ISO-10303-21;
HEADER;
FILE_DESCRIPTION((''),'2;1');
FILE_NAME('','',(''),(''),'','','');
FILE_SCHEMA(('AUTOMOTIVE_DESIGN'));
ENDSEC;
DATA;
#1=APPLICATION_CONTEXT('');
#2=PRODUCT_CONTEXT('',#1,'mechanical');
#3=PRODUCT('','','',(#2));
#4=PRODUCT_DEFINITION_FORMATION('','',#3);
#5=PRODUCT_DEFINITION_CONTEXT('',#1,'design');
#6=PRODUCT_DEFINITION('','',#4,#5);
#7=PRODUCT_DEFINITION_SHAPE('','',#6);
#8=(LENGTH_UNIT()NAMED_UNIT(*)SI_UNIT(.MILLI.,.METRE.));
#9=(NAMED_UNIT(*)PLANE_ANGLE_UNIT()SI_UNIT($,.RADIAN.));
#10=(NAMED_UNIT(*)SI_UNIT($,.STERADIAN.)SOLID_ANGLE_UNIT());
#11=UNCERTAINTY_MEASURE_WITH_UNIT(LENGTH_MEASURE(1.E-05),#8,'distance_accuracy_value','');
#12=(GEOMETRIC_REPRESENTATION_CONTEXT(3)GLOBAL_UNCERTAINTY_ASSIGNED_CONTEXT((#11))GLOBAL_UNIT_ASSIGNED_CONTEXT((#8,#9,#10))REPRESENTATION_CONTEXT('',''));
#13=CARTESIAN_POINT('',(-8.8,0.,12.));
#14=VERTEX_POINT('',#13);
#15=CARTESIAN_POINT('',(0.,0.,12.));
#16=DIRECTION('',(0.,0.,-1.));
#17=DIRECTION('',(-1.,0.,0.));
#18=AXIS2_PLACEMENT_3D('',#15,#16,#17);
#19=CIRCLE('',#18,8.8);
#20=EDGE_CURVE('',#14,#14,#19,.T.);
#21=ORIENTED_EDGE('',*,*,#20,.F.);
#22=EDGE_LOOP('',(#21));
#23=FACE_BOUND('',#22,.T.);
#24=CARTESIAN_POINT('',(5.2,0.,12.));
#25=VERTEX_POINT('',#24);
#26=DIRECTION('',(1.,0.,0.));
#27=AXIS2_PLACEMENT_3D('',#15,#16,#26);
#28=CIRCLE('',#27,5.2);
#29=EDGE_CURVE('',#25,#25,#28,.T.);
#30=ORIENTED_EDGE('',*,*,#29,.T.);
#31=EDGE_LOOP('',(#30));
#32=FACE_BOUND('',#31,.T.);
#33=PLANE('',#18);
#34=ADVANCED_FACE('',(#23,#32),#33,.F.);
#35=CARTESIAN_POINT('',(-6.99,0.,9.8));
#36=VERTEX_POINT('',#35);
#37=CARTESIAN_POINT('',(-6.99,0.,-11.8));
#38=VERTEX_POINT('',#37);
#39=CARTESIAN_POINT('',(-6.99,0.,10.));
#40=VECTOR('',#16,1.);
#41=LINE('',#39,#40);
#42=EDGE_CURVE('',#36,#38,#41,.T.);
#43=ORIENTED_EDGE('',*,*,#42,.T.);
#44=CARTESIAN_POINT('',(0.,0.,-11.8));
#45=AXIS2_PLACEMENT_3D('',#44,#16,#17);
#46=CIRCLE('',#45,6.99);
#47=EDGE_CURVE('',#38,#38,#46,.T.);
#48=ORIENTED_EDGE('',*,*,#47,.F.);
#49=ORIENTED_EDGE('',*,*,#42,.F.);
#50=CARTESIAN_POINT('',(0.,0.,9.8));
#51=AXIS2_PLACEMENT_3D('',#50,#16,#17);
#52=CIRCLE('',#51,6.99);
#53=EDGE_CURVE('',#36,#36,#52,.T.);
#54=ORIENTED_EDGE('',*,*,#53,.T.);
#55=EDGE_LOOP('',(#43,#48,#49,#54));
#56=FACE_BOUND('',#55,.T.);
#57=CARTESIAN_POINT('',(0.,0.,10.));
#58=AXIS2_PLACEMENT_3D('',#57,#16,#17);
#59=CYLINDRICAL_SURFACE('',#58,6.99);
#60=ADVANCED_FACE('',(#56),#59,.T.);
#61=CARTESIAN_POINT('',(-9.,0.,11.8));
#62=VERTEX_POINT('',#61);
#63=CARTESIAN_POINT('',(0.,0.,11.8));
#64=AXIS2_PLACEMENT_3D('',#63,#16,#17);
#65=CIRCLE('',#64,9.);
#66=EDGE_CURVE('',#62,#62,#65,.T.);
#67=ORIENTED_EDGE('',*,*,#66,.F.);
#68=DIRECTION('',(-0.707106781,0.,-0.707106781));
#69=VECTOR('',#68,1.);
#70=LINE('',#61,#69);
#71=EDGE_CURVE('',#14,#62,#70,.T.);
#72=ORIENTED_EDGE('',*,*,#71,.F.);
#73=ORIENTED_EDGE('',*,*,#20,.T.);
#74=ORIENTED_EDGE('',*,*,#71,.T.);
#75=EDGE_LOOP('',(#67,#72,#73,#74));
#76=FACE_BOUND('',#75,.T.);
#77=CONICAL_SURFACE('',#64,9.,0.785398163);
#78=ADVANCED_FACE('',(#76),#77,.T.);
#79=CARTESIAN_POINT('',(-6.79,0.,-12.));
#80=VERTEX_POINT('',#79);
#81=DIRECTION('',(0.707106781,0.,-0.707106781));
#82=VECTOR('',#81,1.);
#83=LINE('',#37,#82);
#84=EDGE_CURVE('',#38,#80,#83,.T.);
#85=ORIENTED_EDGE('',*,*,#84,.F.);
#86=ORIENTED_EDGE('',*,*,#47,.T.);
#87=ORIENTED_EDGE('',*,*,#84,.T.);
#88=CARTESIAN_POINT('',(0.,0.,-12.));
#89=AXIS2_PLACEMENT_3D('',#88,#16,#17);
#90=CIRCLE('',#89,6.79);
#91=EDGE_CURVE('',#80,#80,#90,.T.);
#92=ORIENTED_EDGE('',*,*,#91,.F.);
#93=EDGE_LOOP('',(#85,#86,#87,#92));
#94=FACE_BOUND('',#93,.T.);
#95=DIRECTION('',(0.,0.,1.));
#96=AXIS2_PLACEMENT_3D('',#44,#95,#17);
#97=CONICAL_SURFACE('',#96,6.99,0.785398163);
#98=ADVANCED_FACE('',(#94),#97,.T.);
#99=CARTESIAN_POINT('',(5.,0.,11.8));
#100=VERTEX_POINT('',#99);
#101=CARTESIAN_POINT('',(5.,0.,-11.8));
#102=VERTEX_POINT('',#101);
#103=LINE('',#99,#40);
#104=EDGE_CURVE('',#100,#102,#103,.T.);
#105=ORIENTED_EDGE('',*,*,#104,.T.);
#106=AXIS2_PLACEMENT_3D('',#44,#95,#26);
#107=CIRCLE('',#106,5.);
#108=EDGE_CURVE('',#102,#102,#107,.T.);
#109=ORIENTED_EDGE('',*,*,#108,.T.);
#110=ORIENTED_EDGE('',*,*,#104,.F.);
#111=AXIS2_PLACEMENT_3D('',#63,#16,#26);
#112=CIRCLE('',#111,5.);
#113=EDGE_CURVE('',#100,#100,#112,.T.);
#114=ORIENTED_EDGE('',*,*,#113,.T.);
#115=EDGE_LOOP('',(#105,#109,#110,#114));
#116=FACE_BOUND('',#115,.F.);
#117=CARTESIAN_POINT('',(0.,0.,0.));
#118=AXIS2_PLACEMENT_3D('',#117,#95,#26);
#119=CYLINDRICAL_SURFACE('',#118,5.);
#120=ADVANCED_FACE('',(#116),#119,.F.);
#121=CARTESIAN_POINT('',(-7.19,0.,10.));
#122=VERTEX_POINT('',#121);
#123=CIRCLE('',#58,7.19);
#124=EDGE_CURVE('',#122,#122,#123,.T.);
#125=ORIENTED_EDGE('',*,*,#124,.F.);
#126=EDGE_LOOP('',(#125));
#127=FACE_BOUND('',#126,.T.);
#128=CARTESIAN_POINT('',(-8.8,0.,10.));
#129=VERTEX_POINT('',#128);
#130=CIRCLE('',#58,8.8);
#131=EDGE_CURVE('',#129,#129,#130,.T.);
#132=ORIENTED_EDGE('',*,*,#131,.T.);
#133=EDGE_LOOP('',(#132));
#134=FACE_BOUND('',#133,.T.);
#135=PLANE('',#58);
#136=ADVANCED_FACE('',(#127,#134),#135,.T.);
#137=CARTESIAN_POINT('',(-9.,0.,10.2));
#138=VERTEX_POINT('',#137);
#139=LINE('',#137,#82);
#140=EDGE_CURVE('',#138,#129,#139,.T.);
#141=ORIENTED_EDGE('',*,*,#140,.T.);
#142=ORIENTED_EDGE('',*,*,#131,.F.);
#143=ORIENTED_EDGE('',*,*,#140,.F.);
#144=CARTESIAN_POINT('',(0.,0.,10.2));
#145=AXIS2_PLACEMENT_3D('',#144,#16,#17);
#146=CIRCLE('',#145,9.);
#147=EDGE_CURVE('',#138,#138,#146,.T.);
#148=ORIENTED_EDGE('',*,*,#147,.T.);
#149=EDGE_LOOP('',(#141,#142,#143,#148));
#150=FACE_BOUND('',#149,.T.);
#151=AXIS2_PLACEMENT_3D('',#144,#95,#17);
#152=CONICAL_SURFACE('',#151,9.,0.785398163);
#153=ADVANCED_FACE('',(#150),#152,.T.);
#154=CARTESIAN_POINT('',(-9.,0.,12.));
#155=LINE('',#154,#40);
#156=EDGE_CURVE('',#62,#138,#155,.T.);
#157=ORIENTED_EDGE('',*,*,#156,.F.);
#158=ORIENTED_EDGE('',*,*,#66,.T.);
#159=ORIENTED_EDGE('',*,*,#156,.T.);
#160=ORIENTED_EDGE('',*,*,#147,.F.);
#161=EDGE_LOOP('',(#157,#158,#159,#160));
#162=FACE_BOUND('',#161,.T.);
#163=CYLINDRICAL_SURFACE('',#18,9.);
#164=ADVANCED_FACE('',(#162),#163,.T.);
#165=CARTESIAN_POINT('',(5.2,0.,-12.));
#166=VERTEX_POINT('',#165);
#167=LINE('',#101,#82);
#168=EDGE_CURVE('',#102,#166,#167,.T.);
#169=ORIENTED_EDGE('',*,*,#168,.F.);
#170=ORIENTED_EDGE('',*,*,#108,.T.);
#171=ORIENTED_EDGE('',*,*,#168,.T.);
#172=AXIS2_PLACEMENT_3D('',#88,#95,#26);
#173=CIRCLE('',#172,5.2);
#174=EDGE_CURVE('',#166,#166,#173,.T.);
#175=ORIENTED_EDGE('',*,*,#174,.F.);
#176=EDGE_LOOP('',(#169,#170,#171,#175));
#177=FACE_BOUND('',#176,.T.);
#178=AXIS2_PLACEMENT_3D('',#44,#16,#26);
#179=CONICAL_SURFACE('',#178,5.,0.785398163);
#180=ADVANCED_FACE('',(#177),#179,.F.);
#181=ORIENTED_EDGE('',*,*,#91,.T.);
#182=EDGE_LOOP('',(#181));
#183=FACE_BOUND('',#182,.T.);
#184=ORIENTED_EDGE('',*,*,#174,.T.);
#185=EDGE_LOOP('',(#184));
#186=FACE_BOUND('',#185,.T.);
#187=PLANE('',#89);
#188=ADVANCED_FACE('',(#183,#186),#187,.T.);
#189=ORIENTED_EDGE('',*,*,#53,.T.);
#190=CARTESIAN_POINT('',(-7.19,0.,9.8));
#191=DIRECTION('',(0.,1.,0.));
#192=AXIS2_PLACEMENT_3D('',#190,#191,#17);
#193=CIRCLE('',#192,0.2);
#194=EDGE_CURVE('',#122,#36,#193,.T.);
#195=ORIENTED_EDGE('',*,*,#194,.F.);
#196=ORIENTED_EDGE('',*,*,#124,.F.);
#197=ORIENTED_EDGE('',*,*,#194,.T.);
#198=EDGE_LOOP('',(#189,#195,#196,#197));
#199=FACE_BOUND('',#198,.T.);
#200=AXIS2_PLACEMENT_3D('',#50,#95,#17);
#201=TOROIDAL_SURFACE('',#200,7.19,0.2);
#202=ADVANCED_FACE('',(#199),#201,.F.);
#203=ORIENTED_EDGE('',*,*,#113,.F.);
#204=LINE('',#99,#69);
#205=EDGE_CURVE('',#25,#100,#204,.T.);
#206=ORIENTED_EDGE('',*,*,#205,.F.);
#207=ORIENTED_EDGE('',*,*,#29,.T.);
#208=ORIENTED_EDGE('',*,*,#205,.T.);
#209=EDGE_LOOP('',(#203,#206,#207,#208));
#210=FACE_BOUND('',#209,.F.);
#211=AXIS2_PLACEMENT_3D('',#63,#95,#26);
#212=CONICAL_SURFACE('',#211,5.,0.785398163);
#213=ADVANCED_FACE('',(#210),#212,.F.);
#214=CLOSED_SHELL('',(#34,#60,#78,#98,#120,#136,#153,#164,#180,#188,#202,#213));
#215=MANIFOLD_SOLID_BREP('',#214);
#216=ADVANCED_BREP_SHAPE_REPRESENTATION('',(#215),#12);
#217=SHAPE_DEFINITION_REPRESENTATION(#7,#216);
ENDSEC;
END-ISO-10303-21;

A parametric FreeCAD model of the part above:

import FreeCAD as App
import Part
import Sketcher
from FreeCAD import Vector
Q = App.Units.Quantity


def edges_at(feature, points):
    """Names of the edges that pass closest to the given points."""
    edges = feature.Shape.Edges
    near = lambda p: min(range(len(edges)), key=lambda i: edges[i].distToShape(Part.Vertex(*p))[0])
    return sorted({f"Edge{near(p) + 1}" for p in points})

doc = App.newDocument("Part")
body = doc.addObject("PartDesign::Body", "Body")

# Sketch on XZ plane
sketch1 = body.newObject("Sketcher::SketchObject", "Sketch")
sketch1.AttachmentSupport = (doc.getObject("XZ_Plane"), [""])
sketch1.MapMode = "FlatFace"
sketch1.addGeometry([
    Part.LineSegment(Vector(0, -12, 0), Vector(0, 12, 0)),  # 0
    Part.LineSegment(Vector(0, 12, 0), Vector(-9, 12, 0)),  # 1
    Part.LineSegment(Vector(-9, 12, 0), Vector(-9, 10, 0)),  # 2
    Part.LineSegment(Vector(-9, 10, 0), Vector(-7, 10, 0)),  # 3
    Part.LineSegment(Vector(-7, 10, 0), Vector(-7, -12, 0)),  # 4
    Part.LineSegment(Vector(-7, -12, 0), Vector(0, -12, 0)),  # 5
], False)
sketch1.addConstraint([
    Sketcher.Constraint("Coincident", 0, 2, 1, 1),
    Sketcher.Constraint("Coincident", 1, 2, 2, 1),
    Sketcher.Constraint("Coincident", 2, 2, 3, 1),
    Sketcher.Constraint("Coincident", 3, 2, 4, 1),
    Sketcher.Constraint("Coincident", 4, 2, 5, 1),
    Sketcher.Constraint("Coincident", 5, 2, 0, 1),
    Sketcher.Constraint("Vertical", 0),
    Sketcher.Constraint("Horizontal", 1),
    Sketcher.Constraint("Vertical", 2),
    Sketcher.Constraint("Horizontal", 3),
    Sketcher.Constraint("Vertical", 4),
    Sketcher.Constraint("Horizontal", 5),
    Sketcher.Constraint("Symmetric", 0, 2, 5, 2, -1, 1),
    Sketcher.Constraint("DistanceX", 1, 2, 1, 1, Q("9 mm")),
    Sketcher.Constraint("DistanceY", 0, 1, 0, 2, Q("24 mm")),
    Sketcher.Constraint("DistanceY", 2, 2, 2, 1, Q("2 mm")),
    Sketcher.Constraint("DistanceX", 3, 1, 3, 2, Q("2.01 mm")),
])
revolution = body.newObject("PartDesign::Revolution", "Revolution")
revolution.Profile = sketch1
revolution.ReferenceAxis = (sketch1, ["V_Axis"])
revolution.Angle = 360

# Sketch on XY plane
sketch2 = body.newObject("Sketcher::SketchObject", "Sketch001")
sketch2.AttachmentSupport = (doc.getObject("XY_Plane"), [""])
sketch2.MapMode = "FlatFace"
sketch2.addGeometry(Part.Circle(Vector(0, 0, 0), Vector(0, 0, 1), 5), False)
sketch2.addConstraint([
    Sketcher.Constraint("Coincident", 0, 3, -1, 1),
    Sketcher.Constraint("Diameter", 0, Q("10 mm")),
])
pocket1 = body.newObject("PartDesign::Pocket", "Pocket")
pocket1.Profile = sketch2
pocket1.Type = "ThroughAll"
pocket1.Midplane = True
doc.recompute()

chamfer = body.newObject("PartDesign::Chamfer", "Chamfer")
chamfer.Base = (pocket1, edges_at(pocket1, [
    (-5, 0, -12),
    (6.99, 0, -12),
    (9, 0, 10),
    (9, 0, 12),
    (-5, 0, 12),
]))
chamfer.Size = 0.2
doc.recompute()

fillet = body.newObject("PartDesign::Fillet", "Fillet")
fillet.Base = (chamfer, edges_at(chamfer, [(6.99, 0, 10)]))
fillet.Radius = 0.2

doc.recompute()
